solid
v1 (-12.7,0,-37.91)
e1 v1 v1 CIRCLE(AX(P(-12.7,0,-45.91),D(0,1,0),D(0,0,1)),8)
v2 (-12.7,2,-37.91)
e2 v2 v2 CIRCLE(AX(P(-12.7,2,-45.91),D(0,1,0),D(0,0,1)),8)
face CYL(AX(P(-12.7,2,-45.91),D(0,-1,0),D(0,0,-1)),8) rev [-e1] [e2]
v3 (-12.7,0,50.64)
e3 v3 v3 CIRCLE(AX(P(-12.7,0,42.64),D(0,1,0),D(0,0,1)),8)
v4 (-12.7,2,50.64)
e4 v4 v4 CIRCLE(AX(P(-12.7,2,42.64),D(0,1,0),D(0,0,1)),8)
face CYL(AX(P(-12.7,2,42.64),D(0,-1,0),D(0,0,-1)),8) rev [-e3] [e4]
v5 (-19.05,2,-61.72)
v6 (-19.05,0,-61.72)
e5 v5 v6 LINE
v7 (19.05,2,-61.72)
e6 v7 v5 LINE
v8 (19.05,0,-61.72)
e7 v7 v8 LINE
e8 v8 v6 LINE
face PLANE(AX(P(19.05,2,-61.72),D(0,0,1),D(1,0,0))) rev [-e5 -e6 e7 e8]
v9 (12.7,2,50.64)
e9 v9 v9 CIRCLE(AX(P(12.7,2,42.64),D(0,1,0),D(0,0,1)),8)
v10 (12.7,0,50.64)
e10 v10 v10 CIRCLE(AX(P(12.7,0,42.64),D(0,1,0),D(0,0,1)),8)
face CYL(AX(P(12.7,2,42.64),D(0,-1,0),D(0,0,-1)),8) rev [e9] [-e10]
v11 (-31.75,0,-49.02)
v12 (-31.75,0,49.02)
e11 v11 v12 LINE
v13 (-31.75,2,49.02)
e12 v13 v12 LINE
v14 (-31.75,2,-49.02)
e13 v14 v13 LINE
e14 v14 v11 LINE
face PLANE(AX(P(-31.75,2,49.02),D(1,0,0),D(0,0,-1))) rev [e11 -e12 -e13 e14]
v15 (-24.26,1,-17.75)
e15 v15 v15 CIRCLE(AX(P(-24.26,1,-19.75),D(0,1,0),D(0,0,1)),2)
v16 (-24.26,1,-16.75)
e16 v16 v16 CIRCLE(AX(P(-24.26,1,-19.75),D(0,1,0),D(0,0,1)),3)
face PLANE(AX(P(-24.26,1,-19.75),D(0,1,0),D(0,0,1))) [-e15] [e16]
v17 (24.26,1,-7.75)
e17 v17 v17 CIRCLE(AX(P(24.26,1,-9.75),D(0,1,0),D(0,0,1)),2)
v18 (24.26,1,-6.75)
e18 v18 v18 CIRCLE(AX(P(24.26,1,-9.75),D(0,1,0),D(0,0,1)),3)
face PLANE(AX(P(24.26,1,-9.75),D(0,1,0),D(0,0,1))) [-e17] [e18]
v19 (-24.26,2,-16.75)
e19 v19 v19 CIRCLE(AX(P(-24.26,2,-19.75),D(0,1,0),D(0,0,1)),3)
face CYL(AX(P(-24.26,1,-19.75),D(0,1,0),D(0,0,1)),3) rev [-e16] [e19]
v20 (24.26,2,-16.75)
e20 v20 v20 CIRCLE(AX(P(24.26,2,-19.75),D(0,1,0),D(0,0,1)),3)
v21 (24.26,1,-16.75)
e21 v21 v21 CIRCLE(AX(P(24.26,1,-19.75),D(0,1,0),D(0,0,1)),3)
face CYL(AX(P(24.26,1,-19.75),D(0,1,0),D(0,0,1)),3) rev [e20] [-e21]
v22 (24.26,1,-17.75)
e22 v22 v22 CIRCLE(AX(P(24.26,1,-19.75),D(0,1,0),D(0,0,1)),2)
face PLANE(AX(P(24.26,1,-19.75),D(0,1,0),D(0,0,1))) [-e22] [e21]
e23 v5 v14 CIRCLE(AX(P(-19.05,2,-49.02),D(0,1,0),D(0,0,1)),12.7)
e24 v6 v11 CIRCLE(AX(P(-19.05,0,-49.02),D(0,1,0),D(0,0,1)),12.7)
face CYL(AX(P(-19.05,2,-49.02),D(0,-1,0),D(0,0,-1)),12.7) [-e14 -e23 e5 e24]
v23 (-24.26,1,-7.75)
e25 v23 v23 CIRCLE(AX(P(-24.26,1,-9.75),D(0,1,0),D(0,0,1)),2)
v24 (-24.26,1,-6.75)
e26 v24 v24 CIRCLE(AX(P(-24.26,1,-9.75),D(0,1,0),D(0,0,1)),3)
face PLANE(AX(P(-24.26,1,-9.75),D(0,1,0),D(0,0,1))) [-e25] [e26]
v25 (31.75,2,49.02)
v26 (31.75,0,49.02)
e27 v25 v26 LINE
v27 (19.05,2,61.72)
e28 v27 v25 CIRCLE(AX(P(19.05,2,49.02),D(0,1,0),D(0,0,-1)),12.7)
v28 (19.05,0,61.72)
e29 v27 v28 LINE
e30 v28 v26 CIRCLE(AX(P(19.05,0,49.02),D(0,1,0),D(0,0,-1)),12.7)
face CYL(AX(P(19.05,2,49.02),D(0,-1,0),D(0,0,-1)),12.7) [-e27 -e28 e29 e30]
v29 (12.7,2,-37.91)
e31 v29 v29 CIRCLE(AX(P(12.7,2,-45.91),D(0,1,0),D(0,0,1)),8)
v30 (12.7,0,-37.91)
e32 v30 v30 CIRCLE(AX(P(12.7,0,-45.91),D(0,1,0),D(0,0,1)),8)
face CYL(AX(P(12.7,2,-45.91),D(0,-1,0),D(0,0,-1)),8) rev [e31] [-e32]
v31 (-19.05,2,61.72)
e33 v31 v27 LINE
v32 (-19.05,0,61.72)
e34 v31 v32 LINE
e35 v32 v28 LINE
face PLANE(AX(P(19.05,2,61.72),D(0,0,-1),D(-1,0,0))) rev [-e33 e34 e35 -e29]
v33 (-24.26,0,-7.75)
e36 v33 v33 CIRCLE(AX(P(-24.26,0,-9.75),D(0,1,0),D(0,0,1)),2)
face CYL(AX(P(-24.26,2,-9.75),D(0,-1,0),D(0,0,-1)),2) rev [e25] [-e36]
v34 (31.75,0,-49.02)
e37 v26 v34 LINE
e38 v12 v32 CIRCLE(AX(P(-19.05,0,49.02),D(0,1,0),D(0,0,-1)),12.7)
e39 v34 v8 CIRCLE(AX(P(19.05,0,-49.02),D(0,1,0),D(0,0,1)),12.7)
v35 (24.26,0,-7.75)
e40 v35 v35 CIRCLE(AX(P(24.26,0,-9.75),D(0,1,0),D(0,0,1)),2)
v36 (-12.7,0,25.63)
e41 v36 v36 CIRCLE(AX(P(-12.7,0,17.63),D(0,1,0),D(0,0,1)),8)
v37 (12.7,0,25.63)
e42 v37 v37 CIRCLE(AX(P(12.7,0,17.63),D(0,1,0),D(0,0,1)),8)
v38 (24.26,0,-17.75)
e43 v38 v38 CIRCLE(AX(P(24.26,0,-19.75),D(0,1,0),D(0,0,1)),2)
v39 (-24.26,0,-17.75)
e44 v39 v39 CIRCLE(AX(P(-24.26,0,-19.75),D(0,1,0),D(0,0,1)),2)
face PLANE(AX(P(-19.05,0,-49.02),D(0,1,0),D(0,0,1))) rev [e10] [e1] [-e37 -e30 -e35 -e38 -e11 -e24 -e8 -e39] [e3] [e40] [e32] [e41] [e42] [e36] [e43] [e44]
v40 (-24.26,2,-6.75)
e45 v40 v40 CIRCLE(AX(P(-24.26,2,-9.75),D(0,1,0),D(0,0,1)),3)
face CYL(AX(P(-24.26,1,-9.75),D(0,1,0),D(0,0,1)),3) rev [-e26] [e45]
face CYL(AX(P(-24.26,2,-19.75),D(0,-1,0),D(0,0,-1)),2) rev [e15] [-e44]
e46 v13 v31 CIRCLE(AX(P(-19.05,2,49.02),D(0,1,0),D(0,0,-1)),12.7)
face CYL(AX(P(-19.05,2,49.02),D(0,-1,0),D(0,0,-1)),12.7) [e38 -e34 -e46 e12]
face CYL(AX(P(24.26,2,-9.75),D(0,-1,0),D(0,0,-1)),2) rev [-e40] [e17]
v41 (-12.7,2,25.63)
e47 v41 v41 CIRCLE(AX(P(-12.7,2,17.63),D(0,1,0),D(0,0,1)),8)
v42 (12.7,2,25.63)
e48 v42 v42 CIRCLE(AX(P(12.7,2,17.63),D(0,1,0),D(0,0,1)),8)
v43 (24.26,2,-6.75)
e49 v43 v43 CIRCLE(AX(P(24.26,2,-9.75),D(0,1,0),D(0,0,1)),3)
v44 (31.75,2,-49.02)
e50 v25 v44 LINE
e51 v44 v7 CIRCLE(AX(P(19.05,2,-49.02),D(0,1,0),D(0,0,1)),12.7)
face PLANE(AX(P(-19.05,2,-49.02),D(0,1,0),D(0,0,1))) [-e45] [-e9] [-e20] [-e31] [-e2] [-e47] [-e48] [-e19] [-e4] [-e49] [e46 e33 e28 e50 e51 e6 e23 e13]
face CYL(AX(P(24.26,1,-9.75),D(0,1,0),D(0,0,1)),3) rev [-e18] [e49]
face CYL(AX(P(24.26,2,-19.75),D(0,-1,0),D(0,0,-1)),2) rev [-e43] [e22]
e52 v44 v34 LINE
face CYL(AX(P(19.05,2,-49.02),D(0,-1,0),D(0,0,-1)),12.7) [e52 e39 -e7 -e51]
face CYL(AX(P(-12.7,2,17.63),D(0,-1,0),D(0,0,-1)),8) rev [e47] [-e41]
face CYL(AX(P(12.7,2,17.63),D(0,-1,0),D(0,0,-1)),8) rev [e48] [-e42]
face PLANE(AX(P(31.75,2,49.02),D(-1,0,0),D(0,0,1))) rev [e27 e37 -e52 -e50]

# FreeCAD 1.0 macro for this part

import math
import FreeCAD as App
import Part
import Sketcher
from FreeCAD import Vector

doc = App.newDocument("Part")
body = doc.addObject("PartDesign::Body", "Body")

# Sketch on XZ plane
sketch1 = body.newObject("Sketcher::SketchObject", "Sketch")
sketch1.AttachmentSupport = (doc.getObject("XZ_Plane"), [""])
sketch1.MapMode = "FlatFace"
sketch1.addGeometry(Part.LineSegment(Vector(-19.1, 61.7, 0), Vector(19.1, 61.7, 0)), False)
sketch1.addGeometry(Part.ArcOfCircle(Part.Circle(Vector(19.1, 49, 0), Vector(0, 0, 1), 12.7), math.radians(0), math.radians(90)), False)
sketch1.addGeometry(Part.LineSegment(Vector(31.8, 49, 0), Vector(31.8, -49, 0)), False)
sketch1.addGeometry(Part.ArcOfCircle(Part.Circle(Vector(19.1, -49, 0), Vector(0, 0, 1), 12.7), math.radians(-90), math.radians(0)), False)
sketch1.addGeometry(Part.LineSegment(Vector(19.1, -61.7, 0), Vector(-19.1, -61.7, 0)), False)
sketch1.addGeometry(Part.ArcOfCircle(Part.Circle(Vector(-19.1, -49, 0), Vector(0, 0, 1), 12.7), math.radians(180), math.radians(270)), False)
sketch1.addGeometry(Part.LineSegment(Vector(-31.8, -49, 0), Vector(-31.8, 49, 0)), False)
sketch1.addGeometry(Part.ArcOfCircle(Part.Circle(Vector(-19.1, 49, 0), Vector(0, 0, 1), 12.7), math.radians(90), math.radians(180)), False)
sketch1.addGeometry(Part.Circle(Vector(12.7, 42.6, 0), Vector(0, 0, 1), 8), False)
sketch1.addGeometry(Part.Circle(Vector(12.7, 17.6, 0), Vector(0, 0, 1), 8), False)
sketch1.addGeometry(Part.Circle(Vector(-12.7, 42.6, 0), Vector(0, 0, 1), 8), False)
sketch1.addGeometry(Part.Circle(Vector(-12.7, 17.6, 0), Vector(0, 0, 1), 8), False)
sketch1.addGeometry(Part.Circle(Vector(24.3, -9.8, 0), Vector(0, 0, 1), 2), False)
sketch1.addGeometry(Part.Circle(Vector(24.3, -19.8, 0), Vector(0, 0, 1), 2), False)
sketch1.addGeometry(Part.Circle(Vector(12.7, -45.9, 0), Vector(0, 0, 1), 8), False)
sketch1.addGeometry(Part.Circle(Vector(-24.3, -9.8, 0), Vector(0, 0, 1), 2), False)
sketch1.addGeometry(Part.Circle(Vector(-24.3, -19.8, 0), Vector(0, 0, 1), 2), False)
sketch1.addGeometry(Part.Circle(Vector(-12.7, -45.9, 0), Vector(0, 0, 1), 8), False)
sketch1.addConstraint(Sketcher.Constraint("Tangent", 0, 2, 1, 2))
sketch1.addConstraint(Sketcher.Constraint("Tangent", 1, 1, 2, 1))
sketch1.addConstraint(Sketcher.Constraint("Tangent", 2, 2, 3, 2))
sketch1.addConstraint(Sketcher.Constraint("Tangent", 3, 1, 4, 1))
sketch1.addConstraint(Sketcher.Constraint("Tangent", 4, 2, 5, 2))
sketch1.addConstraint(Sketcher.Constraint("Tangent", 5, 1, 6, 1))
sketch1.addConstraint(Sketcher.Constraint("Tangent", 6, 2, 7, 2))
sketch1.addConstraint(Sketcher.Constraint("Tangent", 7, 1, 0, 1))
sketch1.addConstraint(Sketcher.Constraint("Horizontal", 0))
sketch1.addConstraint(Sketcher.Constraint("Vertical", 2))
sketch1.addConstraint(Sketcher.Constraint("Horizontal", 4))
sketch1.addConstraint(Sketcher.Constraint("Vertical", 6))
sketch1.addConstraint(Sketcher.Constraint("Equal", 1, 3))
sketch1.addConstraint(Sketcher.Constraint("Equal", 3, 5))
sketch1.addConstraint(Sketcher.Constraint("Equal", 5, 7))
sketch1.addConstraint(Sketcher.Constraint("Equal", 8, 9))
sketch1.addConstraint(Sketcher.Constraint("Equal", 9, 10))
sketch1.addConstraint(Sketcher.Constraint("Equal", 10, 11))
sketch1.addConstraint(Sketcher.Constraint("Equal", 12, 13))
sketch1.addConstraint(Sketcher.Constraint("Equal", 11, 14))
sketch1.addConstraint(Sketcher.Constraint("Equal", 13, 15))
sketch1.addConstraint(Sketcher.Constraint("Equal", 15, 16))
sketch1.addConstraint(Sketcher.Constraint("Equal", 14, 17))
sketch1.addConstraint(Sketcher.Constraint("Symmetric", 1, 3, 5, 3, -1, 1))
sketch1.addConstraint(Sketcher.Constraint("Symmetric", 8, 3, 10, 3, -2))
sketch1.addConstraint(Sketcher.Constraint("Symmetric", 9, 3, 11, 3, -2))
sketch1.addConstraint(Sketcher.Constraint("Symmetric", 12, 3, 15, 3, -2))
sketch1.addConstraint(Sketcher.Constraint("Symmetric", 13, 3, 16, 3, -2))
sketch1.addConstraint(Sketcher.Constraint("Symmetric", 14, 3, 17, 3, -2))
sketch1.addConstraint(Sketcher.Constraint("Vertical", 8, 3, 9, 3))
sketch1.addConstraint(Sketcher.Constraint("Vertical", 12, 3, 13, 3))
sketch1.addConstraint(Sketcher.Constraint("Vertical", 9, 3, 14, 3))
sketch1.addConstraint(Sketcher.Constraint("Diameter", 8, 16.0))
sketch1.addConstraint(Sketcher.Constraint("Diameter", 12, 4.0))
sketch1.addConstraint(Sketcher.Constraint("Radius", 1, 12.7))
sketch1.addConstraint(Sketcher.Constraint("DistanceX", 0, 1, 0, 2, 38.1))
sketch1.addConstraint(Sketcher.Constraint("DistanceY", 13, 3, 12, 3, 10.0))
sketch1.addConstraint(Sketcher.Constraint("DistanceY", 2, 2, 2, 1, 98.04))
sketch1.addConstraint(Sketcher.Constraint("DistanceX", -1, 1, 8, 3, 12.7))
sketch1.addConstraint(Sketcher.Constraint("DistanceY", -1, 1, 8, 3, 42.64))
sketch1.addConstraint(Sketcher.Constraint("DistanceY", -1, 1, 9, 3, 17.63))
sketch1.addConstraint(Sketcher.Constraint("DistanceX", -1, 1, 12, 3, 24.26))
sketch1.addConstraint(Sketcher.Constraint("DistanceY", 12, 3, -1, 1, 9.75))
sketch1.addConstraint(Sketcher.Constraint("DistanceY", 14, 3, -1, 1, 45.91))
pad1 = body.newObject("PartDesign::Pad", "Pad")
pad1.Profile = sketch1
pad1.Length = 2
pad1.Reversed = True

# Sketch on XZ plane
sketch2 = body.newObject("Sketcher::SketchObject", "Sketch001")
sketch2.AttachmentSupport = (doc.getObject("XZ_Plane"), [""])
sketch2.MapMode = "FlatFace"
sketch2.AttachmentOffset = App.Placement(Vector(0, 0, -2), App.Rotation())
sketch2.addGeometry(Part.Circle(Vector(-24.3, -19.8, 0), Vector(0, 0, 1), 3), False)
sketch2.addGeometry(Part.Circle(Vector(-24.3, -9.8, 0), Vector(0, 0, 1), 3), False)
sketch2.addGeometry(Part.Circle(Vector(24.3, -19.8, 0), Vector(0, 0, 1), 3), False)
sketch2.addGeometry(Part.Circle(Vector(24.3, -9.8, 0), Vector(0, 0, 1), 3), False)
sketch2.addConstraint(Sketcher.Constraint("Equal", 0, 1))
sketch2.addConstraint(Sketcher.Constraint("Equal", 1, 2))
sketch2.addConstraint(Sketcher.Constraint("Equal", 2, 3))
sketch2.addConstraint(Sketcher.Constraint("Symmetric", 0, 3, 2, 3, -2))
sketch2.addConstraint(Sketcher.Constraint("Symmetric", 1, 3, 3, 3, -2))
sketch2.addConstraint(Sketcher.Constraint("Vertical", 0, 3, 1, 3))
sketch2.addConstraint(Sketcher.Constraint("Diameter", 0, 6.0))
sketch2.addConstraint(Sketcher.Constraint("DistanceY", 0, 3, 1, 3, 10.0))
sketch2.addConstraint(Sketcher.Constraint("DistanceX", 0, 3, -1, 1, 24.26))
sketch2.addConstraint(Sketcher.Constraint("DistanceY", 0, 3, -1, 1, 19.75))
pocket1 = body.newObject("PartDesign::Pocket", "Pocket")
pocket1.Profile = sketch2
pocket1.Length = 1
pocket1.Reversed = True

doc.recompute()
